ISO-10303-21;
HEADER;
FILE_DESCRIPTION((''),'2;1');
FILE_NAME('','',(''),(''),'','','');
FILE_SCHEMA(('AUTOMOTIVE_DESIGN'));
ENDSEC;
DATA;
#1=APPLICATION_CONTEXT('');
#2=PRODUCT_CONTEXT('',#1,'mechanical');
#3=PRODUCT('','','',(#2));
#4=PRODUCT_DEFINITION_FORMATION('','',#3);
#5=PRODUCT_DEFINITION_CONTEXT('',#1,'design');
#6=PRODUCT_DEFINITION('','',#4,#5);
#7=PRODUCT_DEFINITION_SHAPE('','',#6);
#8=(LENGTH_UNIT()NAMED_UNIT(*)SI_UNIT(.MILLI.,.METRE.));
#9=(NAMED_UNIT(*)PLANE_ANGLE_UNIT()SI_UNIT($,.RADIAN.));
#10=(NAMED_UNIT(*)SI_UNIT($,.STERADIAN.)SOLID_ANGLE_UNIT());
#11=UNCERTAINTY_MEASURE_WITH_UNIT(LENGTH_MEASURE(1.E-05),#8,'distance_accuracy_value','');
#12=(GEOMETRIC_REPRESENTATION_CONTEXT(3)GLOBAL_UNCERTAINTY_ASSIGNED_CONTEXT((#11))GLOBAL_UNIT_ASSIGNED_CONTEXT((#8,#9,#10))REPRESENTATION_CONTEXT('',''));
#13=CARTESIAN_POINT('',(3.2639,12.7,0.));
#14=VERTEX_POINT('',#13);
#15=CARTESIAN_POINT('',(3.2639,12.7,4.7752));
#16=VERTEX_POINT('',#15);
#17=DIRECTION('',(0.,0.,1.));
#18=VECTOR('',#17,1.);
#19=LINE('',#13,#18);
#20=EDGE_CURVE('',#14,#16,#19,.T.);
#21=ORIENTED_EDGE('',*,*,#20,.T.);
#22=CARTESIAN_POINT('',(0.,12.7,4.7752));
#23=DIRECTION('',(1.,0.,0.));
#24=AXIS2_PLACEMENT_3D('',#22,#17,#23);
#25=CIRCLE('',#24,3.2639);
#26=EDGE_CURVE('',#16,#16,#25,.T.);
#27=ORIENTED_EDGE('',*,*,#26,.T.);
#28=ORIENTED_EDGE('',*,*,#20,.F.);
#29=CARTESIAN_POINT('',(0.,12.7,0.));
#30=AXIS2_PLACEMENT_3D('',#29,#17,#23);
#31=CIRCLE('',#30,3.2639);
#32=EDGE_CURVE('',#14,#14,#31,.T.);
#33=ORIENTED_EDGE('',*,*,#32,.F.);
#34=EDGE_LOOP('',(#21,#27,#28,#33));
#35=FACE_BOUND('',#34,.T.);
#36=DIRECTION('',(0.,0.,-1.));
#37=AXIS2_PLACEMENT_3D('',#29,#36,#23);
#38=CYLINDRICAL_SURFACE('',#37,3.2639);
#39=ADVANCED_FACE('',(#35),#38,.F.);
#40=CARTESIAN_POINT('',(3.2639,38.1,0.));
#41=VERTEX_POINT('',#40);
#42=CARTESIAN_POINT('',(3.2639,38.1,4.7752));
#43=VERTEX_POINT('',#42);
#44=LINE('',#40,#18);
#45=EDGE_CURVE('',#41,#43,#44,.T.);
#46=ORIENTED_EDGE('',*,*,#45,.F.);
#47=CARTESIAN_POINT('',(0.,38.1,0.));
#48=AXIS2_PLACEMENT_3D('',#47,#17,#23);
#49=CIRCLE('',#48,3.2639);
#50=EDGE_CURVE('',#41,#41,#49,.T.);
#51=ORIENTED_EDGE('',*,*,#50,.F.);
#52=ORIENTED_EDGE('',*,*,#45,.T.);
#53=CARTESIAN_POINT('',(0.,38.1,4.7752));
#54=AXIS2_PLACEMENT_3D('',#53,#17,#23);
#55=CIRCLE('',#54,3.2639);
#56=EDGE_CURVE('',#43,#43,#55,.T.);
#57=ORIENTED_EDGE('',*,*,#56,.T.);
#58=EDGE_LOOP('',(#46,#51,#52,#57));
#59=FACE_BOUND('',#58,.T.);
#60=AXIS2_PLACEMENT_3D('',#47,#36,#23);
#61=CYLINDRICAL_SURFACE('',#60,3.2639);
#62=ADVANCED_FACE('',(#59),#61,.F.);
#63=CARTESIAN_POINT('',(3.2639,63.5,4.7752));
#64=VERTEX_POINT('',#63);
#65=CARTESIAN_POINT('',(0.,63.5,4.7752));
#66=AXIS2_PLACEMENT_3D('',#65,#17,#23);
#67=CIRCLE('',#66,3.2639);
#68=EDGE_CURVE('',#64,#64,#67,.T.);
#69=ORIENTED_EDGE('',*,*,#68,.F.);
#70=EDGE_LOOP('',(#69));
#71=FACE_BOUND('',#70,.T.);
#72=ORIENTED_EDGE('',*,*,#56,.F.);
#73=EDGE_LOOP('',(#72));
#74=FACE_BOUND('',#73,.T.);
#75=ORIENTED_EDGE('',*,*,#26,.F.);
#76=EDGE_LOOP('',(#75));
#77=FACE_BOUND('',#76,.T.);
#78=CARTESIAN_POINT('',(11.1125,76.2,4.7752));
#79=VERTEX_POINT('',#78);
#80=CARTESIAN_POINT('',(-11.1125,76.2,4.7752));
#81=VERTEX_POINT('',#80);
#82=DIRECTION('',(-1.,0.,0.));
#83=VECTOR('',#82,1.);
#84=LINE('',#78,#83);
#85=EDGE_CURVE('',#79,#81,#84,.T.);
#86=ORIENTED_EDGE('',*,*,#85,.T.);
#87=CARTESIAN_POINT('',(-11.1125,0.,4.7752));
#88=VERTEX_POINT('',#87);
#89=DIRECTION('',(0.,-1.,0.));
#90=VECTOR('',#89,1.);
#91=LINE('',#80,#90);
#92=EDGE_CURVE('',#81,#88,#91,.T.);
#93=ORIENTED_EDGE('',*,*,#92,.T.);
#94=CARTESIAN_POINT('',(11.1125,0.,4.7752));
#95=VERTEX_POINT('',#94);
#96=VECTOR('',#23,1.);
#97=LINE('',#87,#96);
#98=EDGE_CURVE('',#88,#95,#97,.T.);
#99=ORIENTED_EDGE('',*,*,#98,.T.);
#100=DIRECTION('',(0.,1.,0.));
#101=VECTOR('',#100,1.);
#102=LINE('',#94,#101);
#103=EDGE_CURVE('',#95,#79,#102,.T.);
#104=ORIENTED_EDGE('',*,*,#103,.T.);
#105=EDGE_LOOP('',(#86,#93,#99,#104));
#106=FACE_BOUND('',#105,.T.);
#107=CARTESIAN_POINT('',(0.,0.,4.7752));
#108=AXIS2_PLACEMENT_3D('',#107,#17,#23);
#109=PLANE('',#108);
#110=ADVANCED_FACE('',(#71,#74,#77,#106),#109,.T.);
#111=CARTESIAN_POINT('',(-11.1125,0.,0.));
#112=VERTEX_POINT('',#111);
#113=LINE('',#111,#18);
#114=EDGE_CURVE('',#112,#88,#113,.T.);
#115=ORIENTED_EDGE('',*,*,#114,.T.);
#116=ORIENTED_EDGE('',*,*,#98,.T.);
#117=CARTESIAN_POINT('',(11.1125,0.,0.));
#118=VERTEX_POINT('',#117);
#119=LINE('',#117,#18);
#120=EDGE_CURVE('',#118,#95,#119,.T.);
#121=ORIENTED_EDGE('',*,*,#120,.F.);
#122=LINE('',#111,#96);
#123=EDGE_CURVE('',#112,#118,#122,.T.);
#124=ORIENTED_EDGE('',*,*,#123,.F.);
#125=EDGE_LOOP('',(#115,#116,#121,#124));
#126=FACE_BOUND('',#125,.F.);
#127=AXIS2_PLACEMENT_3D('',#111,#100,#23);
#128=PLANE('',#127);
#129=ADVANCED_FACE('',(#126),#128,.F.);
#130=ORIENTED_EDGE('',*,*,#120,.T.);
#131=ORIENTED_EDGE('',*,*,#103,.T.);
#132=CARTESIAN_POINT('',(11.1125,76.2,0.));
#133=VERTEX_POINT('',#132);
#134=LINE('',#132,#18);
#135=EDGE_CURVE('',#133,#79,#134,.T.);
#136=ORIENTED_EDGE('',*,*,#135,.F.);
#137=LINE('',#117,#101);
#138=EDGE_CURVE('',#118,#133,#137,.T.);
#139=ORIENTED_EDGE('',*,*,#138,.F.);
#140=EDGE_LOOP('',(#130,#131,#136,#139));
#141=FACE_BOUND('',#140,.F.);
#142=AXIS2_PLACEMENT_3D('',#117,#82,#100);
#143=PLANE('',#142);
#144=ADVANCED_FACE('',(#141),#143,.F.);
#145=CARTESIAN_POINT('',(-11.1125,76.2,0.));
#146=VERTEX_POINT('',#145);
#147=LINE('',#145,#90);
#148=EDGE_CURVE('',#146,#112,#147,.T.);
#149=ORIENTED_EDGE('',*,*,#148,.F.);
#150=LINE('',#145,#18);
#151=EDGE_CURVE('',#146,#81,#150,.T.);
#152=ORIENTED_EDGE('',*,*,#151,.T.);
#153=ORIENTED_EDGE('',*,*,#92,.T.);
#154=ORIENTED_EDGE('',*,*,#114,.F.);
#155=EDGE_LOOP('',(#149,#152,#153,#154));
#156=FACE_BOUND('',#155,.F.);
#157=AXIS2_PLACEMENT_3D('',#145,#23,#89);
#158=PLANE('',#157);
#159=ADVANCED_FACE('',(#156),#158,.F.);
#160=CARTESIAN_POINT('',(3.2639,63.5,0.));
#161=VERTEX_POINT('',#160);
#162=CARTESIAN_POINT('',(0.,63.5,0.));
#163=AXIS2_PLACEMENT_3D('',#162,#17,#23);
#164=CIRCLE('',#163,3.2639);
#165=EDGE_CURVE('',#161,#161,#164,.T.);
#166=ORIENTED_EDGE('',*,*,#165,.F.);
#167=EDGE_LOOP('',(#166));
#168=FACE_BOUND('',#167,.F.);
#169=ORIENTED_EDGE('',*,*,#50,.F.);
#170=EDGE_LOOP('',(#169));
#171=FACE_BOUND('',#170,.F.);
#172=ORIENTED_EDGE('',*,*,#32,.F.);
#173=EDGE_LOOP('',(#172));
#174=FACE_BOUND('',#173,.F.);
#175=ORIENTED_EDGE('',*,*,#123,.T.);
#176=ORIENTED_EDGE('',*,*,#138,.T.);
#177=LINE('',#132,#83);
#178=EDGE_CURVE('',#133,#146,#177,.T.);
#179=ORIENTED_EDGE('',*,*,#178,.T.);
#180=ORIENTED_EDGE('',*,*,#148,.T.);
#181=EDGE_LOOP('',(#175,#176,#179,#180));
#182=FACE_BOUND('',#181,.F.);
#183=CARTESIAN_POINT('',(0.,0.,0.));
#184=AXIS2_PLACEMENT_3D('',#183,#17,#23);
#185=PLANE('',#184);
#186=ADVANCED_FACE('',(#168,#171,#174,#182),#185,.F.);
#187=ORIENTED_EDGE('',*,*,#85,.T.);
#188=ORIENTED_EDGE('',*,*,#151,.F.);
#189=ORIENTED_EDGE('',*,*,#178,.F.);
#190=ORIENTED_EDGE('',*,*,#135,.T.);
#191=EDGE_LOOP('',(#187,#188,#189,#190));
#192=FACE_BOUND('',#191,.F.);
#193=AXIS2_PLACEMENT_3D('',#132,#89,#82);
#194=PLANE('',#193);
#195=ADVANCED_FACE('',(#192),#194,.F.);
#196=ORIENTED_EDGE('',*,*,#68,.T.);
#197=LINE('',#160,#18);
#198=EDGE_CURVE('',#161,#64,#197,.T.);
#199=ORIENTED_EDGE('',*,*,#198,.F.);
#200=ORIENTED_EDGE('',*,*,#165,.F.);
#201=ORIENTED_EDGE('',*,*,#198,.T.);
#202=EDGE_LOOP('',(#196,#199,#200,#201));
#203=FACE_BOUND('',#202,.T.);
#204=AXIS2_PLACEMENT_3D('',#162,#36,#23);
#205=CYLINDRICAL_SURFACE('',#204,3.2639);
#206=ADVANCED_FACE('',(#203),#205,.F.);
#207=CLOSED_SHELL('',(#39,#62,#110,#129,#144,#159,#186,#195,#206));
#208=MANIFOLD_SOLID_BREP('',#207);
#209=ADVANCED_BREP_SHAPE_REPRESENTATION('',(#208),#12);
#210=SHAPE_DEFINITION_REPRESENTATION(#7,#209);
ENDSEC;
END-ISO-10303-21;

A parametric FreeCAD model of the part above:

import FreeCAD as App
import Part
import Sketcher

V = App.Vector
Q = App.Units.Quantity


def add_polygon(sketch, points):
    """Adds a closed chain of lines whose ends are joined by coincident constraints."""
    first, n = sketch.GeometryCount, len(points)
    for a, b in zip(points, points[1:] + points[:1]):
        sketch.addGeometry(Part.LineSegment(App.Vector(*a, 0), App.Vector(*b, 0)), False)
    for i in range(n):
        sketch.addConstraint(Sketcher.Constraint("Coincident", first + i, 2, first + (i + 1) % n, 1))

doc = App.newDocument("Part")
body = doc.addObject("PartDesign::Body", "Body")

# Sketch on XY plane
sketch1 = body.newObject("Sketcher::SketchObject", "Sketch")
sketch1.AttachmentSupport = (doc.getObject("XY_Plane"), [""])
sketch1.MapMode = "FlatFace"
add_polygon(sketch1, [(11.1, 76.2), (-11.1, 76.2), (-11.1, 0), (11.1, 0)])  # lines 0-3
sketch1.addGeometry(Part.Circle(V(0, 12.7, 0), V(0, 0, 1), 3.3), False)  # 4
sketch1.addGeometry(Part.Circle(V(0, 38.1, 0), V(0, 0, 1), 3.3), False)  # 5
sketch1.addGeometry(Part.Circle(V(0, 63.5, 0), V(0, 0, 1), 3.3), False)  # 6
sketch1.addConstraint(Sketcher.Constraint("Horizontal", 0))
sketch1.addConstraint(Sketcher.Constraint("Vertical", 1))
sketch1.addConstraint(Sketcher.Constraint("Horizontal", 2))
sketch1.addConstraint(Sketcher.Constraint("Vertical", 3))
sketch1.addConstraint(Sketcher.Constraint("Equal", 4, 5))
sketch1.addConstraint(Sketcher.Constraint("Equal", 5, 6))
sketch1.addConstraint(Sketcher.Constraint("Symmetric", 1, 2, 2, 2, -1, 1))
sketch1.addConstraint(Sketcher.Constraint("PointOnObject", 4, 3, -2))
sketch1.addConstraint(Sketcher.Constraint("PointOnObject", 5, 3, -2))
sketch1.addConstraint(Sketcher.Constraint("PointOnObject", 6, 3, -2))
sketch1.addConstraint(Sketcher.Constraint("DistanceY", 1, 2, 1, 1, Q("3 in")))
sketch1.addConstraint(Sketcher.Constraint("Diameter", 4, Q("0.257 in")))
sketch1.addConstraint(Sketcher.Constraint("DistanceY", 4, 3, 5, 3, Q("1 in")))
sketch1.addConstraint(Sketcher.Constraint("DistanceY", 5, 3, 6, 3, Q("1 in")))
sketch1.addConstraint(Sketcher.Constraint("DistanceY", -1, 1, 4, 3, Q("0.5 in")))
sketch1.addConstraint(Sketcher.Constraint("DistanceX", 0, 2, 0, 1, Q("0.875 in")))
pad1 = body.newObject("PartDesign::Pad", "Pad")
pad1.Profile = sketch1
pad1.Length = Q("0.188 in")

doc.recompute()
